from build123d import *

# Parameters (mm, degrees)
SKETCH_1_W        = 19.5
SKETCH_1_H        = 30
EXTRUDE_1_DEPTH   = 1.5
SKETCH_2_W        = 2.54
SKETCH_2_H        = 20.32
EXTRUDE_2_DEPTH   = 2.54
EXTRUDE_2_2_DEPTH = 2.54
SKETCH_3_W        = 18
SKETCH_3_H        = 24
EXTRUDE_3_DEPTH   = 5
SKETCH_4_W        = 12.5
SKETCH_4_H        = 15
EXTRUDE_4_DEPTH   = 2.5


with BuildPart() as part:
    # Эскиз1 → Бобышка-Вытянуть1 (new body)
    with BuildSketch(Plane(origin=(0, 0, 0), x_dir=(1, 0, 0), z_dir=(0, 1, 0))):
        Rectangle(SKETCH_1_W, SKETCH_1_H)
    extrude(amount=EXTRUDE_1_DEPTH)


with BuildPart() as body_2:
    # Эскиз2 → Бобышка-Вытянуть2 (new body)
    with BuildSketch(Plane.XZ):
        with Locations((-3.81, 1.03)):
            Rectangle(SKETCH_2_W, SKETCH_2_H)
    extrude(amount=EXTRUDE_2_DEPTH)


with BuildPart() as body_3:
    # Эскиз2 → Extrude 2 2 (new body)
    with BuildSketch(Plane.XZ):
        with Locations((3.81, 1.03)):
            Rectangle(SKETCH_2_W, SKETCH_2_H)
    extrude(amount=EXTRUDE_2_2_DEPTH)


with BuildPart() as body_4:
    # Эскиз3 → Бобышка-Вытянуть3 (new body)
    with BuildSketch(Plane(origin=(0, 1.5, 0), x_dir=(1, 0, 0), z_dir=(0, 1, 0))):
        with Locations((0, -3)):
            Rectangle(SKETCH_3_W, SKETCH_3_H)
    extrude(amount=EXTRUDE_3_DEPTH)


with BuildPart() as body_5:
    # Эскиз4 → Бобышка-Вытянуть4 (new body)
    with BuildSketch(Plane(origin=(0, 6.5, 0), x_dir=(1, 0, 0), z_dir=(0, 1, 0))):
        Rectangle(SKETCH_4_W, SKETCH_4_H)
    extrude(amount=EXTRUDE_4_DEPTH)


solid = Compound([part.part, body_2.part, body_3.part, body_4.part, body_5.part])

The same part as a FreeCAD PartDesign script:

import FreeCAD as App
import Part
import Sketcher

V = App.Vector


def add_polygon(sketch, points):
    """Adds a closed chain of lines whose ends are joined by coincident constraints."""
    first, n = sketch.GeometryCount, len(points)
    for a, b in zip(points, points[1:] + points[:1]):
        sketch.addGeometry(Part.LineSegment(App.Vector(*a, 0), App.Vector(*b, 0)), False)
    for i in range(n):
        sketch.addConstraint(Sketcher.Constraint("Coincident", first + i, 2, first + (i + 1) % n, 1))

doc = App.newDocument("Part")
body = doc.addObject("PartDesign::Body", "Body")

sketch1 = doc.addObject("Sketcher::SketchObject", "Sketch")
body.addObject(sketch1)
sketch1.AttachmentSupport = (doc.XZ_Plane, [""])
sketch1.MapMode = "FlatFace"
add_polygon(sketch1, [(-9.75, -15), (-9.75, 15), (9.75, 15), (9.75, -15)])
sketch1.addConstraint([
    Sketcher.Constraint("Vertical", 0),
    Sketcher.Constraint("Horizontal", 1),
    Sketcher.Constraint("Vertical", 2),
    Sketcher.Constraint("Horizontal", 3),
    Sketcher.Constraint("Symmetric", 0, 2, 2, 2, -1, 1),
    Sketcher.Constraint("DistanceY", 0, 1, 0, 2, 30.0),
    Sketcher.Constraint("DistanceX", 1, 1, 1, 2, 19.5),
])
pad1 = doc.addObject("PartDesign::Pad", "Pad")
body.addObject(pad1)
pad1.Profile = sketch1
pad1.Length = 1.5
pad1.Reversed = True
body2 = doc.addObject("PartDesign::Body", "Body001")

sketch2 = doc.addObject("Sketcher::SketchObject", "Sketch001")
body2.addObject(sketch2)
sketch2.AttachmentSupport = (doc.getObject("XZ_Plane001"), [""])
sketch2.MapMode = "FlatFace"
add_polygon(sketch2, [(-5.08, 11.19), (-5.08, -9.13), (-2.54, -9.13), (-2.54, 11.19)])
sketch2.addConstraint([
    Sketcher.Constraint("Vertical", 0),
    Sketcher.Constraint("Horizontal", 1),
    Sketcher.Constraint("Vertical", 2),
    Sketcher.Constraint("Horizontal", 3),
    Sketcher.Constraint("DistanceX", 1, 1, 1, 2, 2.54),
    Sketcher.Constraint("DistanceY", 0, 2, 0, 1, 20.32),
    Sketcher.Constraint("DistanceX", 0, 2, -1, 1, 5.08),
    Sketcher.Constraint("DistanceY", 0, 2, -1, 1, 9.13),
])
pad2 = doc.addObject("PartDesign::Pad", "Pad001")
body2.addObject(pad2)
pad2.Profile = sketch2
pad2.Length = 2.54
body3 = doc.addObject("PartDesign::Body", "Body002")

sketch3 = doc.addObject("Sketcher::SketchObject", "Sketch002")
body3.addObject(sketch3)
sketch3.AttachmentSupport = (doc.getObject("XZ_Plane002"), [""])
sketch3.MapMode = "FlatFace"
add_polygon(sketch3, [(2.54, 11.19), (2.54, -9.13), (5.08, -9.13), (5.08, 11.19)])
sketch3.addConstraint([
    Sketcher.Constraint("Vertical", 0),
    Sketcher.Constraint("Horizontal", 1),
    Sketcher.Constraint("Vertical", 2),
    Sketcher.Constraint("Horizontal", 3),
    Sketcher.Constraint("DistanceX", 1, 1, 1, 2, 2.54),
    Sketcher.Constraint("DistanceY", 0, 2, 0, 1, 20.32),
    Sketcher.Constraint("DistanceX", -1, 1, 0, 2, 2.54),
    Sketcher.Constraint("DistanceY", 0, 2, -1, 1, 9.13),
])
pad3 = doc.addObject("PartDesign::Pad", "Pad002")
body3.addObject(pad3)
pad3.Profile = sketch3
pad3.Length = 2.54
body4 = doc.addObject("PartDesign::Body", "Body003")

sketch4 = doc.addObject("Sketcher::SketchObject", "Sketch003")
body4.addObject(sketch4)
sketch4.AttachmentSupport = (doc.getObject("XZ_Plane003"), [""])
sketch4.MapMode = "FlatFace"
sketch4.AttachmentOffset = App.Placement(V(0, 0, -1.5), App.Rotation())
add_polygon(sketch4, [(-9, -9), (-9, 15), (9, 15), (9, -9)])
sketch4.addConstraint([
    Sketcher.Constraint("Vertical", 0),
    Sketcher.Constraint("Horizontal", 1),
    Sketcher.Constraint("Vertical", 2),
    Sketcher.Constraint("Horizontal", 3),
    Sketcher.Constraint("DistanceX", 1, 1, 1, 2, 18.0),
    Sketcher.Constraint("DistanceY", 0, 1, 0, 2, 24.0),
    Sketcher.Constraint("DistanceX", 0, 2, -1, 1, 9.0),
    Sketcher.Constraint("DistanceY", -1, 1, 0, 2, 15.0),
])
pad4 = doc.addObject("PartDesign::Pad", "Pad003")
body4.addObject(pad4)
pad4.Profile = sketch4
pad4.Length = 5
pad4.Reversed = True
body5 = doc.addObject("PartDesign::Body", "Body004")

sketch5 = doc.addObject("Sketcher::SketchObject", "Sketch004")
body5.addObject(sketch5)
sketch5.AttachmentSupport = (doc.getObject("XZ_Plane004"), [""])
sketch5.MapMode = "FlatFace"
sketch5.AttachmentOffset = App.Placement(V(0, 0, -6.5), App.Rotation())
add_polygon(sketch5, [(-6.25, -7.5), (-6.25, 7.5), (6.25, 7.5), (6.25, -7.5)])
sketch5.addConstraint([
    Sketcher.Constraint("Vertical", 0),
    Sketcher.Constraint("Horizontal", 1),
    Sketcher.Constraint("Vertical", 2),
    Sketcher.Constraint("Horizontal", 3),
    Sketcher.Constraint("Symmetric", 0, 2, 2, 2, -1, 1),
    Sketcher.Constraint("DistanceY", 0, 1, 0, 2, 15.0),
    Sketcher.Constraint("DistanceX", 1, 1, 1, 2, 12.5),
])
pad5 = doc.addObject("PartDesign::Pad", "Pad004")
body5.addObject(pad5)
pad5.Profile = sketch5
pad5.Length = 2.5
pad5.Reversed = True

doc.recompute()
